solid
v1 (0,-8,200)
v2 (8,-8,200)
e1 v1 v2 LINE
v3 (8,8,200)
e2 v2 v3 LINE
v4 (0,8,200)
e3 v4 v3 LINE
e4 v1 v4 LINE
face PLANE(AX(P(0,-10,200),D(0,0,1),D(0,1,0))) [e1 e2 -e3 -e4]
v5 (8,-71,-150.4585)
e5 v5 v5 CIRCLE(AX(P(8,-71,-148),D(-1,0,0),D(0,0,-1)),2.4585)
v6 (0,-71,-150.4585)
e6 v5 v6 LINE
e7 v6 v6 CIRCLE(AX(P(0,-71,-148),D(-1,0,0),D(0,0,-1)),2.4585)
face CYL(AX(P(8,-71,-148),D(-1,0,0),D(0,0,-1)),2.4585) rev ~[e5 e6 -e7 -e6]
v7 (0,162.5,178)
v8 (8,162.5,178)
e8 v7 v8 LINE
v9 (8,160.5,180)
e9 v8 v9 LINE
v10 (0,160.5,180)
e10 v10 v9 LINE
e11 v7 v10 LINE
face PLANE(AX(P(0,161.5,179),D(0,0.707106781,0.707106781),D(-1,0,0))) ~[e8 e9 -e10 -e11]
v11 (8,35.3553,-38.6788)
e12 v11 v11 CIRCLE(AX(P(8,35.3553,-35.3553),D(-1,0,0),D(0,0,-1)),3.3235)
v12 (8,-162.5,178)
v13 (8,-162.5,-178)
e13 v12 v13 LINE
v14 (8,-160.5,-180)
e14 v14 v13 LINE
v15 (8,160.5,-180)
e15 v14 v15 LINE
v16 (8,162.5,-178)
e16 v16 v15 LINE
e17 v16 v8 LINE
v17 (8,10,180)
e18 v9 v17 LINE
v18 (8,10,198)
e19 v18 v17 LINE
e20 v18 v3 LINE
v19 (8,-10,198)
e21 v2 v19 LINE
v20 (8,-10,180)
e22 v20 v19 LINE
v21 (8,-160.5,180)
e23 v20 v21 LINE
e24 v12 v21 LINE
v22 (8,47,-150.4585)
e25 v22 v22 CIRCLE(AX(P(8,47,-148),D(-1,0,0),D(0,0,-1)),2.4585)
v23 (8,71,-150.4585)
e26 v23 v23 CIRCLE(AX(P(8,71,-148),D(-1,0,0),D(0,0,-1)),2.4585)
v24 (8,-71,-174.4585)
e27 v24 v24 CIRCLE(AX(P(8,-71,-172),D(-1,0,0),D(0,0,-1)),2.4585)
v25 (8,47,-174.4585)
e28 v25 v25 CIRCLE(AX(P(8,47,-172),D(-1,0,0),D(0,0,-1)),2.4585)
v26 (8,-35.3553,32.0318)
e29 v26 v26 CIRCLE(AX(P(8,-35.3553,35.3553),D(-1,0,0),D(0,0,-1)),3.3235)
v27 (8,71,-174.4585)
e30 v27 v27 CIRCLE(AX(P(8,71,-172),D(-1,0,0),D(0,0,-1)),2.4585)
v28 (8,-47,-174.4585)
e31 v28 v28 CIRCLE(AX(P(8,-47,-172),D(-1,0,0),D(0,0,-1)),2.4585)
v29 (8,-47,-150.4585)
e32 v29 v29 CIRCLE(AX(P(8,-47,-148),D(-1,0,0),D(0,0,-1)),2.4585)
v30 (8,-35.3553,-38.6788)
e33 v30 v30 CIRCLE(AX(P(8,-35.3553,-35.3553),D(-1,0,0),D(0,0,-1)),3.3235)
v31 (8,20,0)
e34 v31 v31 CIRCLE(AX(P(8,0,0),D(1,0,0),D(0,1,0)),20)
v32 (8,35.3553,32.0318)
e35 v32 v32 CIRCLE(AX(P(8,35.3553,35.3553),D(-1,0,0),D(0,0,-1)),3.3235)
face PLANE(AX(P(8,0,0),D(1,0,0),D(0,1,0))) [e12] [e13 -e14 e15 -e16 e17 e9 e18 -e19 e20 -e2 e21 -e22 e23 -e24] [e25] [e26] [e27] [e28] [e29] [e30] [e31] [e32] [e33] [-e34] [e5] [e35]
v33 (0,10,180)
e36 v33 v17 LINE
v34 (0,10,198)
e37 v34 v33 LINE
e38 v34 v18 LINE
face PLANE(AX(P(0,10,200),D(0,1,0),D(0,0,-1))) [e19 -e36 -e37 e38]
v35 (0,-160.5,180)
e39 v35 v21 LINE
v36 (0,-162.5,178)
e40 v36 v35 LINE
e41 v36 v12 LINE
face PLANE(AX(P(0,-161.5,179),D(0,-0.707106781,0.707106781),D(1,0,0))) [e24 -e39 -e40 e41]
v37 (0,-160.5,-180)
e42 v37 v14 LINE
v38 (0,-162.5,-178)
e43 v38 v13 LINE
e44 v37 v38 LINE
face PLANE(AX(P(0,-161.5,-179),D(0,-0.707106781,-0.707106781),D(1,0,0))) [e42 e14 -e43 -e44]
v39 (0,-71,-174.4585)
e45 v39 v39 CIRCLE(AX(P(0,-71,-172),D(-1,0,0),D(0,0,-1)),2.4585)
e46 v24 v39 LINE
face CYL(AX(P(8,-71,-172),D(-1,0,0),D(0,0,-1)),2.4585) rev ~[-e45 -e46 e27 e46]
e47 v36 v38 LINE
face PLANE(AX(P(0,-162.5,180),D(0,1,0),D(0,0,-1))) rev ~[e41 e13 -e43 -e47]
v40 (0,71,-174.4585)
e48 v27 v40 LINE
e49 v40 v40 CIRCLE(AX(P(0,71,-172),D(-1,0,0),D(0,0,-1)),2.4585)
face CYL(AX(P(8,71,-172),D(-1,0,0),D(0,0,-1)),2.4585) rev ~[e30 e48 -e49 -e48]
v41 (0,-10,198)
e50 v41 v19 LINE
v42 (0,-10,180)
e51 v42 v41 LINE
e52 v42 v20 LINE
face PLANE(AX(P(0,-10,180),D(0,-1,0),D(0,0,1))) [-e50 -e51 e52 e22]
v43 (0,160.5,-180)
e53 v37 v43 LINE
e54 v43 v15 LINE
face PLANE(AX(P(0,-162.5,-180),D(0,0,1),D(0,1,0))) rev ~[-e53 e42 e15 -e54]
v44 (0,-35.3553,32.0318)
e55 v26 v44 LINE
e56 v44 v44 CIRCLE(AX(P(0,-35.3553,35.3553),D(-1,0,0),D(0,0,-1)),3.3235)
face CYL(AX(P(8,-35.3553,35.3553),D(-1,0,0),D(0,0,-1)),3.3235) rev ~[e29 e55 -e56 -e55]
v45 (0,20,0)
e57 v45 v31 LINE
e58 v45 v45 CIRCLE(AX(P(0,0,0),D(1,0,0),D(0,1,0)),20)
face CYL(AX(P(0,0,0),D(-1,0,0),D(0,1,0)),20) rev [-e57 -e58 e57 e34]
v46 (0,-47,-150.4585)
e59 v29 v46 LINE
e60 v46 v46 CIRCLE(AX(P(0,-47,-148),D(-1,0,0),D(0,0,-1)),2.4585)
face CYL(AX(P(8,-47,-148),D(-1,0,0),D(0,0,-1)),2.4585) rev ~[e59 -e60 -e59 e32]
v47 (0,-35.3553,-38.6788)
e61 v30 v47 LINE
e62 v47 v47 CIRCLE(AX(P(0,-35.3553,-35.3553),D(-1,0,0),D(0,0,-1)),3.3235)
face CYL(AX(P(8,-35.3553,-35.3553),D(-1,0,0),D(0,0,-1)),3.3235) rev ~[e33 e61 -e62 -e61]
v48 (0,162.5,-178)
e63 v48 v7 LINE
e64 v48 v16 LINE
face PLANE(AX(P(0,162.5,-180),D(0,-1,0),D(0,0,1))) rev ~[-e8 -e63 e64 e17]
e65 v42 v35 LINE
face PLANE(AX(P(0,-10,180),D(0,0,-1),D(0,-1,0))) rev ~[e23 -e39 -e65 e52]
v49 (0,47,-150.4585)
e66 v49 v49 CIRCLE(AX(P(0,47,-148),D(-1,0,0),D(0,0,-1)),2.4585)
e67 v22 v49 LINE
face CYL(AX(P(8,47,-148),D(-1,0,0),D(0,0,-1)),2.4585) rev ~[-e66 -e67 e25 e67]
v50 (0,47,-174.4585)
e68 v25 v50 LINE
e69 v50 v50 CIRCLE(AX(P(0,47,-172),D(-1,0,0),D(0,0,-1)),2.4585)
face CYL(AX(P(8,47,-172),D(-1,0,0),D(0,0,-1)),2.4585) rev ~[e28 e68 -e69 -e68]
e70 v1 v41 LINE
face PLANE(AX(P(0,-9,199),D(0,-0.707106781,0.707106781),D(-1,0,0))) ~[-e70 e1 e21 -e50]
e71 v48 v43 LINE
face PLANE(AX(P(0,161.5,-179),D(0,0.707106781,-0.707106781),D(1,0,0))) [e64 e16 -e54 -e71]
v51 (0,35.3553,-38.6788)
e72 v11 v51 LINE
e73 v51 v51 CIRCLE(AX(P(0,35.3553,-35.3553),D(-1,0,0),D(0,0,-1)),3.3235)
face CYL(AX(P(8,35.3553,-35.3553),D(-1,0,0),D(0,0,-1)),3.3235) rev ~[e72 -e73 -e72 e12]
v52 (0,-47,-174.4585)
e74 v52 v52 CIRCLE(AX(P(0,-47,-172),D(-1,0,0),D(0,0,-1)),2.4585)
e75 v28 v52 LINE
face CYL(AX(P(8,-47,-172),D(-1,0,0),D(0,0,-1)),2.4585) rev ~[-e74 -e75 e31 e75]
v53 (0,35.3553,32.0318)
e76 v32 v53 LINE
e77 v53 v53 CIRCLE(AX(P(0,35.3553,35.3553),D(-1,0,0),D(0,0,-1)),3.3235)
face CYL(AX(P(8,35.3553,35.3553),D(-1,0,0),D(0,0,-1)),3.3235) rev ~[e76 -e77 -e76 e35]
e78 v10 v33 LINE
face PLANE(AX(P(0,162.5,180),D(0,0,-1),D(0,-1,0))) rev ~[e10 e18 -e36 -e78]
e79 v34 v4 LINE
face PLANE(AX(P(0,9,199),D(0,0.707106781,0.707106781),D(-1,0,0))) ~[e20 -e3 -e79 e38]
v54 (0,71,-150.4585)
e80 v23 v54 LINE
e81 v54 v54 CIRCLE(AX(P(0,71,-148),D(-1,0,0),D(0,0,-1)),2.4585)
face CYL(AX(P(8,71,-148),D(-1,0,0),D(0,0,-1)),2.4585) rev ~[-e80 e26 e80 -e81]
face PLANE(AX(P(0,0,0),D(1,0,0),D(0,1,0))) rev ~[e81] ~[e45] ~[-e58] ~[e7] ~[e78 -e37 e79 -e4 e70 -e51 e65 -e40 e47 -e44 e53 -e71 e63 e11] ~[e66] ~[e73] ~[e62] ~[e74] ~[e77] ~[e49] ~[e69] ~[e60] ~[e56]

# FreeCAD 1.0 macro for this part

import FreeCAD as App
import Part
import Sketcher

V = App.Vector


def edges_at(feature, points):
    """Names of the edges that pass closest to the given points."""
    edges = feature.Shape.Edges
    near = lambda p: min(range(len(edges)), key=lambda i: edges[i].distToShape(Part.Vertex(*p))[0])
    return sorted({f"Edge{near(p) + 1}" for p in points})


def add_polygon(sketch, points):
    """Adds a closed chain of lines whose ends are joined by coincident constraints."""
    first, n = sketch.GeometryCount, len(points)
    for a, b in zip(points, points[1:] + points[:1]):
        sketch.addGeometry(Part.LineSegment(App.Vector(*a, 0), App.Vector(*b, 0)), False)
    for i in range(n):
        sketch.addConstraint(Sketcher.Constraint("Coincident", first + i, 2, first + (i + 1) % n, 1))

doc = App.newDocument("Part")
params = doc.addObject("Spreadsheet::Sheet", "Params")
for row, (alias, value) in enumerate([
    ("sketch1_diameter", "40 mm"),
    ("sketch1_width", "20 mm"),
    ("sketch1_width2", "325 mm"),
    ("sketch1_height", "360 mm"),
    ("pad1_length", "8 mm"),
    ("chamfer_size", "2 mm"),
    ("hole_diameter", "4.917 mm"),
    ("hole2_diameter", "6.647 mm"),
    ("chamfer2_size", "2 mm"),
], start=1):
    params.set(f"A{row}", alias)
    params.set(f"B{row}", "=" + value)
    params.setAlias(f"B{row}", alias)

body = doc.addObject("PartDesign::Body", "Body")

# Sketch on YZ plane
sketch1 = doc.addObject("Sketcher::SketchObject", "Sketch")
body.addObject(sketch1)
sketch1.AttachmentSupport = (doc.YZ_Plane, [""])
sketch1.MapMode = "FlatFace"
add_polygon(sketch1, [(162, -180), (162, 180), (10, 180), (10, 200), (-10, 200), (-10, 180), (-162, 180), (-162, -180)])  # lines 0-7
sketch1.addGeometry(Part.Circle(V(0, 0, 0), V(0, 0, 1), 20), False)  # 8
sketch1.addConstraint([
    Sketcher.Constraint("Vertical", 0),
    Sketcher.Constraint("Horizontal", 1),
    Sketcher.Constraint("Vertical", 2),
    Sketcher.Constraint("Horizontal", 3),
    Sketcher.Constraint("Vertical", 4),
    Sketcher.Constraint("Horizontal", 5),
    Sketcher.Constraint("Vertical", 6),
    Sketcher.Constraint("Horizontal", 7),
    Sketcher.Constraint("Coincident", 8, 3, -1, 1),
    Sketcher.Constraint("Symmetric", 0, 2, 6, 2, -1, 1),
    Sketcher.Constraint("Symmetric", 1, 2, 4, 2, -2),
    Sketcher.Constraint("Equal", 3, 2),
    Sketcher.Constraint("Diameter", 8, 40.0),
    Sketcher.Constraint("DistanceX", 3, 2, 3, 1, 20.0),
    Sketcher.Constraint("DistanceX", 7, 1, 7, 2, 325.0),
    Sketcher.Constraint("DistanceY", 0, 1, 0, 2, 360.0),
])
sketch1.setExpression("Constraints[20]", "Params.sketch1_diameter")
sketch1.setExpression("Constraints[21]", "Params.sketch1_width")
sketch1.setExpression("Constraints[22]", "Params.sketch1_width2")
sketch1.setExpression("Constraints[23]", "Params.sketch1_height")
pad1 = doc.addObject("PartDesign::Pad", "Pad")
body.addObject(pad1)
pad1.Profile = sketch1
pad1.setExpression("Length", "Params.pad1_length")
doc.recompute()

chamfer = doc.addObject("PartDesign::Chamfer", "Chamfer")
body.addObject(chamfer)
chamfer.Base = (pad1, edges_at(pad1, [
    (4, 162.5, 180),
    (4, 162.5, -180),
    (4, -162.5, 180),
    (4, -162.5, -180),
]))
chamfer.setExpression("Size", "Params.chamfer_size")

# Sketch on YZ plane
sketch2 = doc.addObject("Sketcher::SketchObject", "Sketch001")
body.addObject(sketch2)
sketch2.AttachmentSupport = (doc.YZ_Plane, [""])
sketch2.MapMode = "FlatFace"
sketch2.AttachmentOffset = App.Placement(V(0, 0, 8), App.Rotation())
sketch2.addGeometry([
    Part.Circle(V(71, -148, 0), V(0, 0, 1), 2.5),  # 0
    Part.Circle(V(47, -148, 0), V(0, 0, 1), 2.5),  # 1
    Part.Circle(V(71, -172, 0), V(0, 0, 1), 2.5),  # 2
    Part.Circle(V(47, -172, 0), V(0, 0, 1), 2.5),  # 3
    Part.Circle(V(-71, -172, 0), V(0, 0, 1), 2.5),  # 4
    Part.Circle(V(-47, -172, 0), V(0, 0, 1), 2.5),  # 5
    Part.Circle(V(-71, -148, 0), V(0, 0, 1), 2.5),  # 6
    Part.Circle(V(-47, -148, 0), V(0, 0, 1), 2.5),  # 7
], False)
sketch2.addConstraint([
    Sketcher.Constraint("Equal", 0, 1),
    Sketcher.Constraint("Equal", 1, 2),
    Sketcher.Constraint("Equal", 2, 3),
    Sketcher.Constraint("Equal", 3, 4),
    Sketcher.Constraint("Equal", 4, 5),
    Sketcher.Constraint("Equal", 5, 6),
    Sketcher.Constraint("Equal", 6, 7),
    Sketcher.Constraint("Symmetric", 2, 3, 4, 3, -2),
    Sketcher.Constraint("Symmetric", 3, 3, 5, 3, -2),
    Sketcher.Constraint("Symmetric", 0, 3, 6, 3, -2),
    Sketcher.Constraint("Symmetric", 1, 3, 7, 3, -2),
    Sketcher.Constraint("Horizontal", 0, 3, 1, 3),
    Sketcher.Constraint("Horizontal", 2, 3, 3, 3),
    Sketcher.Constraint("Vertical", 0, 3, 2, 3),
    Sketcher.Constraint("Vertical", 1, 3, 3, 3),
    Sketcher.Constraint("Diameter", 0, 4.917),
    Sketcher.Constraint("DistanceX", -1, 1, 0, 3, 71.0),
    Sketcher.Constraint("DistanceY", 0, 3, -1, 1, 148.0),
    Sketcher.Constraint("DistanceX", -1, 1, 1, 3, 47.0),
    Sketcher.Constraint("DistanceY", 2, 3, -1, 1, 172.0),
])
doc.recompute()
hole = doc.addObject("PartDesign::Hole", "Hole")
body.addObject(hole)
hole.Profile = sketch2
hole.ThreadType = "None"
hole.setExpression("Diameter", "Params.hole_diameter")
hole.DepthType = "ThroughAll"

# Sketch on YZ plane
sketch3 = doc.addObject("Sketcher::SketchObject", "Sketch002")
body.addObject(sketch3)
sketch3.AttachmentSupport = (doc.YZ_Plane, [""])
sketch3.MapMode = "FlatFace"
sketch3.AttachmentOffset = App.Placement(V(0, 0, 8), App.Rotation())
sketch3.addGeometry([
    Part.Circle(V(35.4, 35.4, 0), V(0, 0, 1), 3.3),
    Part.Circle(V(-35.4, 35.4, 0), V(0, 0, 1), 3.3),
    Part.Circle(V(-35.4, -35.4, 0), V(0, 0, 1), 3.3),
    Part.Circle(V(35.4, -35.4, 0), V(0, 0, 1), 3.3),
], False)
sketch3.addConstraint([
    Sketcher.Constraint("Equal", 0, 1),
    Sketcher.Constraint("Equal", 1, 2),
    Sketcher.Constraint("Equal", 2, 3),
    Sketcher.Constraint("Symmetric", 0, 3, 2, 3, -1, 1),
    Sketcher.Constraint("Symmetric", 1, 3, 3, 3, -1, 1),
    Sketcher.Constraint("Symmetric", 0, 3, 1, 3, -2),
    Sketcher.Constraint("Diameter", 0, 6.647),
    Sketcher.Constraint("DistanceX", -1, 1, 0, 3, 35.3553),
    Sketcher.Constraint("DistanceY", -1, 1, 0, 3, 35.3553),
])
doc.recompute()
hole2 = doc.addObject("PartDesign::Hole", "Hole001")
body.addObject(hole2)
hole2.Profile = sketch3
hole2.ThreadType = "None"
hole2.setExpression("Diameter", "Params.hole2_diameter")
hole2.DepthType = "ThroughAll"
doc.recompute()

chamfer2 = doc.addObject("PartDesign::Chamfer", "Chamfer001")
body.addObject(chamfer2)
chamfer2.Base = (hole2, edges_at(hole2, [(4, 10, 200), (4, -10, 200)]))
chamfer2.setExpression("Size", "Params.chamfer2_size")

doc.recompute()
